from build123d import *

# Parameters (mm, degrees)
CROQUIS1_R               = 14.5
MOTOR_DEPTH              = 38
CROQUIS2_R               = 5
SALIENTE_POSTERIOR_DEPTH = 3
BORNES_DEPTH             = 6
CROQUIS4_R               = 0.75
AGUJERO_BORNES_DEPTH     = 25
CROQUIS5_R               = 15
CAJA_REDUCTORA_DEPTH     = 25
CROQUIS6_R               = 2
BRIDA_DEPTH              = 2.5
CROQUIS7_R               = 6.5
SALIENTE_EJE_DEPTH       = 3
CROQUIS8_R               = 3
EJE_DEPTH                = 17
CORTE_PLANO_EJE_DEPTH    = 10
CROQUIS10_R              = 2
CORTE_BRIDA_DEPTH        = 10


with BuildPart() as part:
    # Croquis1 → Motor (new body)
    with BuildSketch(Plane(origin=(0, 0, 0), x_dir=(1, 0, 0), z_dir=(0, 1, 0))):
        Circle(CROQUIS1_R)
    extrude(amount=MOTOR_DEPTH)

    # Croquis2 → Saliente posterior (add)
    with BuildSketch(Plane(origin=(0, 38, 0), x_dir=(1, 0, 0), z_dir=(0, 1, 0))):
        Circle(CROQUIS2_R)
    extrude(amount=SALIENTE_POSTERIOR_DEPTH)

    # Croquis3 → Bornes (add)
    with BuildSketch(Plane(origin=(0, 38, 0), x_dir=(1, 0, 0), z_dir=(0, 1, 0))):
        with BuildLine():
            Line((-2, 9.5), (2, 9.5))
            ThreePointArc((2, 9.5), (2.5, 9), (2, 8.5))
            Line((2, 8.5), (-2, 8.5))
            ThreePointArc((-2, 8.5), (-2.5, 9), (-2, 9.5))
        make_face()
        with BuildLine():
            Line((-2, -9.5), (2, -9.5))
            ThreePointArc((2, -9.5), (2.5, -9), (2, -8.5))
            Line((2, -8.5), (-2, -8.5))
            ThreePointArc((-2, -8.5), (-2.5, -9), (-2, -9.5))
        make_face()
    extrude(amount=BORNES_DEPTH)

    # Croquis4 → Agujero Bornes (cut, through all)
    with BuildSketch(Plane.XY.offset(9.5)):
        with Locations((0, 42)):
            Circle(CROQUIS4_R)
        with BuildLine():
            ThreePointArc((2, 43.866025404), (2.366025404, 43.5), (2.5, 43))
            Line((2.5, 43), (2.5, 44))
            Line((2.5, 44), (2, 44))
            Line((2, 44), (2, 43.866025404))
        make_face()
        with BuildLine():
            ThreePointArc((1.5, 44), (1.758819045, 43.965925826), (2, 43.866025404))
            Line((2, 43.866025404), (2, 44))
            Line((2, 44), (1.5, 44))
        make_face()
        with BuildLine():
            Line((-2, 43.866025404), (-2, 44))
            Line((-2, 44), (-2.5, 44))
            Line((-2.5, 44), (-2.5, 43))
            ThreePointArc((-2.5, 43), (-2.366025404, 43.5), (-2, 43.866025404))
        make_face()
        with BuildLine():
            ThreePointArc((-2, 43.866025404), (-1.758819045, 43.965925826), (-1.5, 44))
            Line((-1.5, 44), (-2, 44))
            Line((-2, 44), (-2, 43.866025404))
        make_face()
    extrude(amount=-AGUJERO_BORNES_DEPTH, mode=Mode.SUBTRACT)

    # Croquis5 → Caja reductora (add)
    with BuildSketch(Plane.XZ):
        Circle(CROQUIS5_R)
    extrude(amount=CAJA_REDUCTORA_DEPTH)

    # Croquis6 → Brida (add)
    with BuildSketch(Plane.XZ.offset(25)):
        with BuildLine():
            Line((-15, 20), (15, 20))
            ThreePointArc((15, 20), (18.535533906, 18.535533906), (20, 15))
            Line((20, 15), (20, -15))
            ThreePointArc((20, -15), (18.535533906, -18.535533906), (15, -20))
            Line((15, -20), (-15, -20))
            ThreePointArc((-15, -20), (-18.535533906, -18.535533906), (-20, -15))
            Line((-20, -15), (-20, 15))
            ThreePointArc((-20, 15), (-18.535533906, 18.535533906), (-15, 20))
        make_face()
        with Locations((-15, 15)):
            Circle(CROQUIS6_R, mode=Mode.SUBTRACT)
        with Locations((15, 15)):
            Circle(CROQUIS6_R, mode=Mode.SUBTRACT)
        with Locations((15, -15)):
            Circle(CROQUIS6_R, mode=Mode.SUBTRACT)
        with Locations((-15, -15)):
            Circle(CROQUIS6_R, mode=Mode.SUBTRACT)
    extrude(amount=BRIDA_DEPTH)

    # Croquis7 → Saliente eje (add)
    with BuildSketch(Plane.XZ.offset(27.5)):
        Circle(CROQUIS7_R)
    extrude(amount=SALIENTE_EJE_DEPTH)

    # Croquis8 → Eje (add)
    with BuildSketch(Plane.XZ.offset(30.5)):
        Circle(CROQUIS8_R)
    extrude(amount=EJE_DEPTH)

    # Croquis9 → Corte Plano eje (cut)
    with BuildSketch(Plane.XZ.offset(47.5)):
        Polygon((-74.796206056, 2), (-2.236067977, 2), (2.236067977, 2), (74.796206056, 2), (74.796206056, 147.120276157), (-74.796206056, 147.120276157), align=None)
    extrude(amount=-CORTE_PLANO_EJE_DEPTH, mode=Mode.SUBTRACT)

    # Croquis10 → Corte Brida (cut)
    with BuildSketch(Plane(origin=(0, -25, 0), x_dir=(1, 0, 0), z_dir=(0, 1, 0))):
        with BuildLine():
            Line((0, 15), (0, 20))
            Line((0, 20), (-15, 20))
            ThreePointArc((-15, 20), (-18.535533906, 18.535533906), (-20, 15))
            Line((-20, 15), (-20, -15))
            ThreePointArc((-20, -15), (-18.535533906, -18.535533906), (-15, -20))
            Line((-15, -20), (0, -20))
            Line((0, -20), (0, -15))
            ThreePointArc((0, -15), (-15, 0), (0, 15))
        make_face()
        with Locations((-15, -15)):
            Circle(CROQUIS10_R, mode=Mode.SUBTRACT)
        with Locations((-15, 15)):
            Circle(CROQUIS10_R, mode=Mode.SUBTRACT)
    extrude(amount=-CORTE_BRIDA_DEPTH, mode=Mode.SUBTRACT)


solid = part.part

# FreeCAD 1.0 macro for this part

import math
import FreeCAD as App
import Part
import Sketcher
from FreeCAD import Vector
Q = App.Units.Quantity


def add_polygon(sketch, points):
    """Adds a closed chain of lines whose ends are joined by coincident constraints."""
    first, n = sketch.GeometryCount, len(points)
    for a, b in zip(points, points[1:] + points[:1]):
        sketch.addGeometry(Part.LineSegment(App.Vector(*a, 0), App.Vector(*b, 0)), False)
    for i in range(n):
        sketch.addConstraint(Sketcher.Constraint("Coincident", first + i, 2, first + (i + 1) % n, 1))

doc = App.newDocument("Part")
body = doc.addObject("PartDesign::Body", "Body")

# Sketch on XZ plane
sketch1 = body.newObject("Sketcher::SketchObject", "Sketch")
sketch1.AttachmentSupport = (doc.getObject("XZ_Plane"), [""])
sketch1.MapMode = "FlatFace"
sketch1.addGeometry(Part.Circle(Vector(0, 0, 0), Vector(0, 0, 1), 14), False)
sketch1.addConstraint(Sketcher.Constraint("Coincident", 0, 3, -1, 1))
sketch1.addConstraint(Sketcher.Constraint("Diameter", 0, Q("29 mm")))
pad1 = body.newObject("PartDesign::Pad", "Pad")
pad1.Profile = sketch1
pad1.Length = 38
pad1.Reversed = True

# Sketch on XZ plane
sketch2 = body.newObject("Sketcher::SketchObject", "Sketch001")
sketch2.AttachmentSupport = (doc.getObject("XZ_Plane"), [""])
sketch2.MapMode = "FlatFace"
sketch2.AttachmentOffset = App.Placement(Vector(0, 0, -38), App.Rotation())
sketch2.addGeometry(Part.Circle(Vector(0, 0, 0), Vector(0, 0, 1), 5), False)
sketch2.addConstraint(Sketcher.Constraint("Coincident", 0, 3, -1, 1))
sketch2.addConstraint(Sketcher.Constraint("Diameter", 0, Q("10 mm")))
pad2 = body.newObject("PartDesign::Pad", "Pad001")
pad2.Profile = sketch2
pad2.Length = 3
pad2.Reversed = True

# Sketch on XZ plane
sketch3 = body.newObject("Sketcher::SketchObject", "Sketch002")
sketch3.AttachmentSupport = (doc.getObject("XZ_Plane"), [""])
sketch3.MapMode = "FlatFace"
sketch3.AttachmentOffset = App.Placement(Vector(0, 0, -38), App.Rotation())
sketch3.addGeometry(Part.LineSegment(Vector(2, -9.5, 0), Vector(-2, -9.5, 0)), False)
sketch3.addGeometry(Part.ArcOfCircle(Part.Circle(Vector(-2, -9, 0), Vector(0, 0, 1), 0.5), math.radians(90), math.radians(270)), False)
sketch3.addGeometry(Part.LineSegment(Vector(-2, -8.5, 0), Vector(2, -8.5, 0)), False)
sketch3.addGeometry(Part.ArcOfCircle(Part.Circle(Vector(2, -9, 0), Vector(0, 0, 1), 0.5), math.radians(-90), math.radians(90)), False)
sketch3.addGeometry(Part.LineSegment(Vector(-2, 9.5, 0), Vector(2, 9.5, 0)), False)
sketch3.addGeometry(Part.ArcOfCircle(Part.Circle(Vector(2, 9, 0), Vector(0, 0, 1), 0.5), math.radians(-90), math.radians(90)), False)
sketch3.addGeometry(Part.LineSegment(Vector(2, 8.5, 0), Vector(-2, 8.5, 0)), False)
sketch3.addGeometry(Part.ArcOfCircle(Part.Circle(Vector(-2, 9, 0), Vector(0, 0, 1), 0.5), math.radians(90), math.radians(270)), False)
sketch3.addConstraint(Sketcher.Constraint("Tangent", 0, 2, 1, 2))
sketch3.addConstraint(Sketcher.Constraint("Tangent", 1, 1, 2, 1))
sketch3.addConstraint(Sketcher.Constraint("Tangent", 2, 2, 3, 2))
sketch3.addConstraint(Sketcher.Constraint("Tangent", 3, 1, 0, 1))
sketch3.addConstraint(Sketcher.Constraint("Tangent", 4, 2, 5, 2))
sketch3.addConstraint(Sketcher.Constraint("Tangent", 5, 1, 6, 1))
sketch3.addConstraint(Sketcher.Constraint("Tangent", 6, 2, 7, 2))
sketch3.addConstraint(Sketcher.Constraint("Tangent", 7, 1, 4, 1))
sketch3.addConstraint(Sketcher.Constraint("Horizontal", 0))
sketch3.addConstraint(Sketcher.Constraint("Horizontal", 2))
sketch3.addConstraint(Sketcher.Constraint("Horizontal", 4))
sketch3.addConstraint(Sketcher.Constraint("Horizontal", 6))
sketch3.addConstraint(Sketcher.Constraint("Equal", 3, 5))
sketch3.addConstraint(Sketcher.Constraint("Symmetric", 1, 3, 5, 3, -1, 1))
sketch3.addConstraint(Sketcher.Constraint("Vertical", 3, 3, 5, 3))
sketch3.addConstraint(Sketcher.Constraint("Vertical", 1, 3, 7, 3))
sketch3.addConstraint(Sketcher.Constraint("Radius", 1, Q("0.5 mm")))
sketch3.addConstraint(Sketcher.Constraint("DistanceX", 0, 2, 0, 1, Q("4 mm")))
sketch3.addConstraint(Sketcher.Constraint("DistanceY", 1, 3, -1, 1, Q("9 mm")))
pad3 = body.newObject("PartDesign::Pad", "Pad002")
pad3.Profile = sketch3
pad3.Length = 6
pad3.Reversed = True

# Sketch on XY plane
sketch4 = body.newObject("Sketcher::SketchObject", "Sketch003")
sketch4.AttachmentSupport = (doc.getObject("XY_Plane"), [""])
sketch4.MapMode = "FlatFace"
sketch4.AttachmentOffset = App.Placement(Vector(0, 0, 9.5), App.Rotation())
sketch4.addGeometry(Part.Circle(Vector(0, 42, 0), Vector(0, 0, 1), 0.8), False)
sketch4.addGeometry(Part.ArcOfCircle(Part.Circle(Vector(1.5, 43, 0), Vector(0, 0, 1), 1), math.radians(0), math.radians(60)), False)
sketch4.addGeometry(Part.LineSegment(Vector(2.5, 43, 0), Vector(2.5, 44, 0)), False)
sketch4.addGeometry(Part.LineSegment(Vector(2.5, 44, 0), Vector(1.5, 44, 0)), False)
sketch4.addGeometry(Part.ArcOfCircle(Part.Circle(Vector(1.5, 43, 0), Vector(0, 0, 1), 1), math.radians(60), math.radians(90)), False)
sketch4.addGeometry(Part.LineSegment(Vector(-2.5, 44, 0), Vector(-2.5, 43, 0)), False)
sketch4.addGeometry(Part.ArcOfCircle(Part.Circle(Vector(-1.5, 43, 0), Vector(0, 0, 1), 1), math.radians(120), math.radians(180)), False)
sketch4.addGeometry(Part.ArcOfCircle(Part.Circle(Vector(-1.5, 43, 0), Vector(0, 0, 1), 1), math.radians(90), math.radians(120)), False)
sketch4.addGeometry(Part.LineSegment(Vector(-1.5, 44, 0), Vector(-2.5, 44, 0)), False)
sketch4.addConstraint(Sketcher.Constraint("Tangent", 1, 1, 2, 1))
sketch4.addConstraint(Sketcher.Constraint("Coincident", 2, 2, 3, 1))
sketch4.addConstraint(Sketcher.Constraint("Tangent", 3, 2, 4, 2))
sketch4.addConstraint(Sketcher.Constraint("Tangent", 4, 1, 1, 2))
sketch4.addConstraint(Sketcher.Constraint("Tangent", 5, 2, 6, 2))
sketch4.addConstraint(Sketcher.Constraint("Tangent", 6, 1, 7, 2))
sketch4.addConstraint(Sketcher.Constraint("Tangent", 7, 1, 8, 1))
sketch4.addConstraint(Sketcher.Constraint("Coincident", 8, 2, 5, 1))
sketch4.addConstraint(Sketcher.Constraint("Vertical", 2))
sketch4.addConstraint(Sketcher.Constraint("Horizontal", 3))
sketch4.addConstraint(Sketcher.Constraint("Vertical", 5))
sketch4.addConstraint(Sketcher.Constraint("Horizontal", 8))
sketch4.addConstraint(Sketcher.Constraint("Equal", 1, 4))
sketch4.addConstraint(Sketcher.Constraint("Equal", 4, 6))
sketch4.addConstraint(Sketcher.Constraint("Equal", 6, 7))
sketch4.addConstraint(Sketcher.Constraint("Symmetric", 1, 3, 6, 3, -2))
sketch4.addConstraint(Sketcher.Constraint("PointOnObject", 0, 3, -2))
sketch4.addConstraint(Sketcher.Constraint("Horizontal", 4, 1, 6, 1))
sketch4.addConstraint(Sketcher.Constraint("Radius", 1, Q("1 mm")))
sketch4.addConstraint(Sketcher.Constraint("Diameter", 0, Q("1.5 mm")))
sketch4.addConstraint(Sketcher.Constraint("DistanceY", -1, 1, 0, 3, Q("42 mm")))
sketch4.addConstraint(Sketcher.Constraint("DistanceY", -1, 1, 1, 3, Q("43 mm")))
sketch4.addConstraint(Sketcher.Constraint("DistanceX", -1, 1, 4, 1, Q("2 mm")))
sketch4.addConstraint(Sketcher.Constraint("DistanceX", 6, 3, 4, 3, Q("3 mm")))
pocket1 = body.newObject("PartDesign::Pocket", "Pocket")
pocket1.Profile = sketch4
pocket1.Type = "ThroughAll"

# Sketch on XZ plane
sketch5 = body.newObject("Sketcher::SketchObject", "Sketch004")
sketch5.AttachmentSupport = (doc.getObject("XZ_Plane"), [""])
sketch5.MapMode = "FlatFace"
sketch5.addGeometry(Part.Circle(Vector(0, 0, 0), Vector(0, 0, 1), 15), False)
sketch5.addConstraint(Sketcher.Constraint("Coincident", 0, 3, -1, 1))
sketch5.addConstraint(Sketcher.Constraint("Diameter", 0, Q("30 mm")))
pad4 = body.newObject("PartDesign::Pad", "Pad003")
pad4.Profile = sketch5
pad4.Length = 25

# Sketch on XZ plane
sketch6 = body.newObject("Sketcher::SketchObject", "Sketch005")
sketch6.AttachmentSupport = (doc.getObject("XZ_Plane"), [""])
sketch6.MapMode = "FlatFace"
sketch6.AttachmentOffset = App.Placement(Vector(0, 0, 25), App.Rotation())
sketch6.addGeometry(Part.LineSegment(Vector(15, 20, 0), Vector(-15, 20, 0)), False)
sketch6.addGeometry(Part.ArcOfCircle(Part.Circle(Vector(-15, 15, 0), Vector(0, 0, 1), 5), math.radians(90), math.radians(180)), False)
sketch6.addGeometry(Part.LineSegment(Vector(-20, 15, 0), Vector(-20, -15, 0)), False)
sketch6.addGeometry(Part.ArcOfCircle(Part.Circle(Vector(-15, -15, 0), Vector(0, 0, 1), 5), math.radians(180), math.radians(270)), False)
sketch6.addGeometry(Part.LineSegment(Vector(-15, -20, 0), Vector(15, -20, 0)), False)
sketch6.addGeometry(Part.ArcOfCircle(Part.Circle(Vector(15, -15, 0), Vector(0, 0, 1), 5), math.radians(-90), math.radians(0)), False)
sketch6.addGeometry(Part.LineSegment(Vector(20, -15, 0), Vector(20, 15, 0)), False)
sketch6.addGeometry(Part.ArcOfCircle(Part.Circle(Vector(15, 15, 0), Vector(0, 0, 1), 5), math.radians(0), math.radians(90)), False)
sketch6.addGeometry(Part.Circle(Vector(15, -15, 0), Vector(0, 0, 1), 2), False)
sketch6.addGeometry(Part.Circle(Vector(-15, -15, 0), Vector(0, 0, 1), 2), False)
sketch6.addGeometry(Part.Circle(Vector(15, 15, 0), Vector(0, 0, 1), 2), False)
sketch6.addGeometry(Part.Circle(Vector(-15, 15, 0), Vector(0, 0, 1), 2), False)
sketch6.addConstraint(Sketcher.Constraint("Tangent", 0, 2, 1, 1))
sketch6.addConstraint(Sketcher.Constraint("Tangent", 1, 2, 2, 1))
sketch6.addConstraint(Sketcher.Constraint("Tangent", 2, 2, 3, 1))
sketch6.addConstraint(Sketcher.Constraint("Tangent", 3, 2, 4, 1))
sketch6.addConstraint(Sketcher.Constraint("Tangent", 4, 2, 5, 1))
sketch6.addConstraint(Sketcher.Constraint("Tangent", 5, 2, 6, 1))
sketch6.addConstraint(Sketcher.Constraint("Tangent", 6, 2, 7, 1))
sketch6.addConstraint(Sketcher.Constraint("Tangent", 7, 2, 0, 1))
sketch6.addConstraint(Sketcher.Constraint("Horizontal", 0))
sketch6.addConstraint(Sketcher.Constraint("Vertical", 2))
sketch6.addConstraint(Sketcher.Constraint("Horizontal", 4))
sketch6.addConstraint(Sketcher.Constraint("Vertical", 6))
sketch6.addConstraint(Sketcher.Constraint("Coincident", 8, 3, 5, 3))
sketch6.addConstraint(Sketcher.Constraint("Coincident", 9, 3, 3, 3))
sketch6.addConstraint(Sketcher.Constraint("Coincident", 10, 3, 7, 3))
sketch6.addConstraint(Sketcher.Constraint("Coincident", 11, 3, 1, 3))
sketch6.addConstraint(Sketcher.Constraint("Equal", 1, 3))
sketch6.addConstraint(Sketcher.Constraint("Equal", 3, 5))
sketch6.addConstraint(Sketcher.Constraint("Equal", 5, 7))
sketch6.addConstraint(Sketcher.Constraint("Equal", 8, 9))
sketch6.addConstraint(Sketcher.Constraint("Equal", 9, 10))
sketch6.addConstraint(Sketcher.Constraint("Equal", 10, 11))
sketch6.addConstraint(Sketcher.Constraint("Symmetric", 1, 3, 5, 3, -1, 1))
sketch6.addConstraint(Sketcher.Constraint("Equal", 4, 2))
sketch6.addConstraint(Sketcher.Constraint("Diameter", 8, Q("4 mm")))
sketch6.addConstraint(Sketcher.Constraint("Radius", 1, Q("5 mm")))
sketch6.addConstraint(Sketcher.Constraint("DistanceX", 0, 2, 0, 1, Q("30 mm")))
pad5 = body.newObject("PartDesign::Pad", "Pad004")
pad5.Profile = sketch6
pad5.Length = 2.5

# Sketch on XZ plane
sketch7 = body.newObject("Sketcher::SketchObject", "Sketch006")
sketch7.AttachmentSupport = (doc.getObject("XZ_Plane"), [""])
sketch7.MapMode = "FlatFace"
sketch7.AttachmentOffset = App.Placement(Vector(0, 0, 27.5), App.Rotation())
sketch7.addGeometry(Part.Circle(Vector(0, 0, 0), Vector(0, 0, 1), 6), False)
sketch7.addConstraint(Sketcher.Constraint("Coincident", 0, 3, -1, 1))
sketch7.addConstraint(Sketcher.Constraint("Diameter", 0, Q("13 mm")))
pad6 = body.newObject("PartDesign::Pad", "Pad005")
pad6.Profile = sketch7
pad6.Length = 3

# Sketch on XZ plane
sketch8 = body.newObject("Sketcher::SketchObject", "Sketch007")
sketch8.AttachmentSupport = (doc.getObject("XZ_Plane"), [""])
sketch8.MapMode = "FlatFace"
sketch8.AttachmentOffset = App.Placement(Vector(0, 0, 30.5), App.Rotation())
sketch8.addGeometry(Part.Circle(Vector(0, 0, 0), Vector(0, 0, 1), 3), False)
sketch8.addConstraint(Sketcher.Constraint("Coincident", 0, 3, -1, 1))
sketch8.addConstraint(Sketcher.Constraint("Diameter", 0, Q("6 mm")))
pad7 = body.newObject("PartDesign::Pad", "Pad006")
pad7.Profile = sketch8
pad7.Length = 17

# Sketch on XZ plane
sketch9 = body.newObject("Sketcher::SketchObject", "Sketch008")
sketch9.AttachmentSupport = (doc.getObject("XZ_Plane"), [""])
sketch9.MapMode = "FlatFace"
sketch9.AttachmentOffset = App.Placement(Vector(0, 0, 47.5), App.Rotation())
add_polygon(sketch9, [(-75, 2), (75, 2), (75, 147), (-75, 147)])  # lines 0-3
sketch9.addConstraint(Sketcher.Constraint("Horizontal", 0))
sketch9.addConstraint(Sketcher.Constraint("Vertical", 1))
sketch9.addConstraint(Sketcher.Constraint("Horizontal", 2))
sketch9.addConstraint(Sketcher.Constraint("Vertical", 3))
sketch9.addConstraint(Sketcher.Constraint("DistanceY", -1, 1, 0, 2, Q("2 mm")))
sketch9.addConstraint(Sketcher.Constraint("DistanceX", 0, 1, 0, 2, Q("149.592412 mm")))
sketch9.addConstraint(Sketcher.Constraint("DistanceY", 1, 1, 1, 2, Q("145.120276 mm")))
sketch9.addConstraint(Sketcher.Constraint("DistanceX", -1, 1, 0, 2, Q("74.796206 mm")))
pocket2 = body.newObject("PartDesign::Pocket", "Pocket001")
pocket2.Profile = sketch9
pocket2.Length = 10

# Sketch on XZ plane
sketch10 = body.newObject("Sketcher::SketchObject", "Sketch009")
sketch10.AttachmentSupport = (doc.getObject("XZ_Plane"), [""])
sketch10.MapMode = "FlatFace"
sketch10.AttachmentOffset = App.Placement(Vector(0, 0, 25), App.Rotation())
sketch10.addGeometry(Part.LineSegment(Vector(0, -15, 0), Vector(0, -20, 0)), False)
sketch10.addGeometry(Part.LineSegment(Vector(0, -20, 0), Vector(-15, -20, 0)), False)
sketch10.addGeometry(Part.ArcOfCircle(Part.Circle(Vector(-15, -15, 0), Vector(0, 0, 1), 5), math.radians(180), math.radians(270)), False)
sketch10.addGeometry(Part.LineSegment(Vector(-20, -15, 0), Vector(-20, 15, 0)), False)
sketch10.addGeometry(Part.ArcOfCircle(Part.Circle(Vector(-15, 15, 0), Vector(0, 0, 1), 5), math.radians(90), math.radians(180)), False)
sketch10.addGeometry(Part.LineSegment(Vector(-15, 20, 0), Vector(0, 20, 0)), False)
sketch10.addGeometry(Part.LineSegment(Vector(0, 20, 0), Vector(0, 15, 0)), False)
sketch10.addGeometry(Part.ArcOfCircle(Part.Circle(Vector(0, 0, 0), Vector(0, 0, 1), 15), math.radians(90), math.radians(270)), False)
sketch10.addGeometry(Part.Circle(Vector(-15, 15, 0), Vector(0, 0, 1), 2), False)
sketch10.addGeometry(Part.Circle(Vector(-15, -15, 0), Vector(0, 0, 1), 2), False)
sketch10.addConstraint(Sketcher.Constraint("Coincident", 0, 2, 1, 1))
sketch10.addConstraint(Sketcher.Constraint("Tangent", 1, 2, 2, 2))
sketch10.addConstraint(Sketcher.Constraint("Tangent", 2, 1, 3, 1))
sketch10.addConstraint(Sketcher.Constraint("Tangent", 3, 2, 4, 2))
sketch10.addConstraint(Sketcher.Constraint("Tangent", 4, 1, 5, 1))
sketch10.addConstraint(Sketcher.Constraint("Coincident", 5, 2, 6, 1))
sketch10.addConstraint(Sketcher.Constraint("Coincident", 6, 2, 7, 1))
sketch10.addConstraint(Sketcher.Constraint("Coincident", 7, 2, 0, 1))
sketch10.addConstraint(Sketcher.Constraint("Vertical", 0))
sketch10.addConstraint(Sketcher.Constraint("Horizontal", 1))
sketch10.addConstraint(Sketcher.Constraint("Vertical", 3))
sketch10.addConstraint(Sketcher.Constraint("Horizontal", 5))
sketch10.addConstraint(Sketcher.Constraint("Vertical", 6))
sketch10.addConstraint(Sketcher.Constraint("Coincident", 7, 3, -1, 1))
sketch10.addConstraint(Sketcher.Constraint("Coincident", 8, 3, 4, 3))
sketch10.addConstraint(Sketcher.Constraint("Coincident", 9, 3, 2, 3))
sketch10.addConstraint(Sketcher.Constraint("Equal", 2, 4))
sketch10.addConstraint(Sketcher.Constraint("Equal", 8, 9))
sketch10.addConstraint(Sketcher.Constraint("Symmetric", 0, 2, 5, 2, -1, 1))
sketch10.addConstraint(Sketcher.Constraint("PointOnObject", 0, 2, -2))
sketch10.addConstraint(Sketcher.Constraint("Horizontal", 3, 2, 6, 2))
sketch10.addConstraint(Sketcher.Constraint("Diameter", 8, Q("4 mm")))
sketch10.addConstraint(Sketcher.Constraint("Radius", 2, Q("5 mm")))
sketch10.addConstraint(Sketcher.Constraint("Radius", 7, Q("15 mm")))
sketch10.addConstraint(Sketcher.Constraint("DistanceX", 1, 2, 1, 1, Q("15 mm")))
pocket3 = body.newObject("PartDesign::Pocket", "Pocket002")
pocket3.Profile = sketch10
pocket3.Length = 10
pocket3.Reversed = True

doc.recompute()
